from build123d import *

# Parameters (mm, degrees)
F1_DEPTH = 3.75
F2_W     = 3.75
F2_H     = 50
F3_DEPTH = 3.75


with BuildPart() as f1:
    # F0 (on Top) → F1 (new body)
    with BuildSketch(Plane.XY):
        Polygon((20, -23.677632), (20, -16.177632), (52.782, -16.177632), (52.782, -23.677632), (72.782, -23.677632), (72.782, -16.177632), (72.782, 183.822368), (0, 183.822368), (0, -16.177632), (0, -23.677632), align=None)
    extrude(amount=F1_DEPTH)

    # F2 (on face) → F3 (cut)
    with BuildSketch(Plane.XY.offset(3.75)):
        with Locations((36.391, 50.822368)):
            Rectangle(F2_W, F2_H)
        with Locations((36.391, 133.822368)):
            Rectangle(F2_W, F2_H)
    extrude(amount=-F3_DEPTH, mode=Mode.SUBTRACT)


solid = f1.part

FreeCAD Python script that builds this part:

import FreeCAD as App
import Part
import Sketcher
Q = App.Units.Quantity

doc = App.newDocument("Part")
body = doc.addObject("PartDesign::Body", "Body")

# Sketch on XY plane
sketch1 = doc.addObject("Sketcher::SketchObject", "Sketch")
body.addObject(sketch1)
sketch1.AttachmentSupport = (doc.XY_Plane, [""])
sketch1.MapMode = "FlatFace"
sketch1.addGeometry(Part.LineSegment(App.Vector(20, -24, 0), App.Vector(20, -16, 0)), False)
sketch1.addGeometry(Part.LineSegment(App.Vector(20, -16, 0), App.Vector(53, -16, 0)), False)
sketch1.addGeometry(Part.LineSegment(App.Vector(53, -16, 0), App.Vector(53, -24, 0)), False)
sketch1.addGeometry(Part.LineSegment(App.Vector(53, -24, 0), App.Vector(73, -24, 0)), False)
sketch1.addGeometry(Part.LineSegment(App.Vector(73, -24, 0), App.Vector(73, 184, 0)), False)
sketch1.addGeometry(Part.LineSegment(App.Vector(73, 184, 0), App.Vector(0, 184, 0)), False)
sketch1.addGeometry(Part.LineSegment(App.Vector(0, 184, 0), App.Vector(0, -24, 0)), False)
sketch1.addGeometry(Part.LineSegment(App.Vector(0, -24, 0), App.Vector(20, -24, 0)), False)
sketch1.addConstraint(Sketcher.Constraint("Coincident", 0, 2, 1, 1))
sketch1.addConstraint(Sketcher.Constraint("Coincident", 1, 2, 2, 1))
sketch1.addConstraint(Sketcher.Constraint("Coincident", 2, 2, 3, 1))
sketch1.addConstraint(Sketcher.Constraint("Coincident", 3, 2, 4, 1))
sketch1.addConstraint(Sketcher.Constraint("Coincident", 4, 2, 5, 1))
sketch1.addConstraint(Sketcher.Constraint("Coincident", 5, 2, 6, 1))
sketch1.addConstraint(Sketcher.Constraint("Coincident", 6, 2, 7, 1))
sketch1.addConstraint(Sketcher.Constraint("Coincident", 7, 2, 0, 1))
sketch1.addConstraint(Sketcher.Constraint("Vertical", 0))
sketch1.addConstraint(Sketcher.Constraint("Horizontal", 1))
sketch1.addConstraint(Sketcher.Constraint("Vertical", 2))
sketch1.addConstraint(Sketcher.Constraint("Horizontal", 3))
sketch1.addConstraint(Sketcher.Constraint("Vertical", 4))
sketch1.addConstraint(Sketcher.Constraint("Horizontal", 5))
sketch1.addConstraint(Sketcher.Constraint("Vertical", 6))
sketch1.addConstraint(Sketcher.Constraint("Horizontal", 7))
sketch1.addConstraint(Sketcher.Constraint("PointOnObject", 5, 2, -2))
sketch1.addConstraint(Sketcher.Constraint("Horizontal", 3, 2, 6, 2))
sketch1.addConstraint(Sketcher.Constraint("Equal", 3, 7))
sketch1.addConstraint(Sketcher.Constraint("DistanceX", 3, 1, 3, 2, Q("20 mm")))
sketch1.addConstraint(Sketcher.Constraint("DistanceY", 0, 1, 0, 2, Q("7.5 mm")))
sketch1.addConstraint(Sketcher.Constraint("DistanceY", 4, 1, 4, 2, Q("207.5 mm")))
sketch1.addConstraint(Sketcher.Constraint("DistanceX", 1, 1, 1, 2, Q("32.782 mm")))
sketch1.addConstraint(Sketcher.Constraint("DistanceY", 0, 2, -1, 1, Q("16.177632 mm")))
pad1 = doc.addObject("PartDesign::Pad", "Pad")
body.addObject(pad1)
pad1.Profile = sketch1
pad1.Length = 3.75

# Sketch on XY plane
sketch2 = doc.addObject("Sketcher::SketchObject", "Sketch001")
body.addObject(sketch2)
sketch2.AttachmentSupport = (doc.XY_Plane, [""])
sketch2.MapMode = "FlatFace"
sketch2.AttachmentOffset = App.Placement(App.Vector(0, 0, 3.75), App.Rotation())
sketch2.addGeometry(Part.LineSegment(App.Vector(34.5, 75.8, 0), App.Vector(34.5, 25.8, 0)), False)
sketch2.addGeometry(Part.LineSegment(App.Vector(34.5, 25.8, 0), App.Vector(38.3, 25.8, 0)), False)
sketch2.addGeometry(Part.LineSegment(App.Vector(38.3, 25.8, 0), App.Vector(38.3, 75.8, 0)), False)
sketch2.addGeometry(Part.LineSegment(App.Vector(38.3, 75.8, 0), App.Vector(34.5, 75.8, 0)), False)
sketch2.addGeometry(Part.LineSegment(App.Vector(34.5, 158.8, 0), App.Vector(34.5, 108.8, 0)), False)
sketch2.addGeometry(Part.LineSegment(App.Vector(34.5, 108.8, 0), App.Vector(38.3, 108.8, 0)), False)
sketch2.addGeometry(Part.LineSegment(App.Vector(38.3, 108.8, 0), App.Vector(38.3, 158.8, 0)), False)
sketch2.addGeometry(Part.LineSegment(App.Vector(38.3, 158.8, 0), App.Vector(34.5, 158.8, 0)), False)
sketch2.addConstraint(Sketcher.Constraint("Coincident", 0, 2, 1, 1))
sketch2.addConstraint(Sketcher.Constraint("Coincident", 1, 2, 2, 1))
sketch2.addConstraint(Sketcher.Constraint("Coincident", 2, 2, 3, 1))
sketch2.addConstraint(Sketcher.Constraint("Coincident", 3, 2, 0, 1))
sketch2.addConstraint(Sketcher.Constraint("Coincident", 4, 2, 5, 1))
sketch2.addConstraint(Sketcher.Constraint("Coincident", 5, 2, 6, 1))
sketch2.addConstraint(Sketcher.Constraint("Coincident", 6, 2, 7, 1))
sketch2.addConstraint(Sketcher.Constraint("Coincident", 7, 2, 4, 1))
sketch2.addConstraint(Sketcher.Constraint("Vertical", 0))
sketch2.addConstraint(Sketcher.Constraint("Horizontal", 1))
sketch2.addConstraint(Sketcher.Constraint("Vertical", 2))
sketch2.addConstraint(Sketcher.Constraint("Horizontal", 3))
sketch2.addConstraint(Sketcher.Constraint("Vertical", 4))
sketch2.addConstraint(Sketcher.Constraint("Horizontal", 5))
sketch2.addConstraint(Sketcher.Constraint("Vertical", 6))
sketch2.addConstraint(Sketcher.Constraint("Horizontal", 7))
sketch2.addConstraint(Sketcher.Constraint("Vertical", 3, 2, 4, 2))
sketch2.addConstraint(Sketcher.Constraint("Vertical", 2, 2, 5, 2))
sketch2.addConstraint(Sketcher.Constraint("Equal", 2, 4))
sketch2.addConstraint(Sketcher.Constraint("DistanceY", 0, 2, 0, 1, Q("50 mm")))
sketch2.addConstraint(Sketcher.Constraint("DistanceY", 3, 2, 4, 2, Q("33 mm")))
sketch2.addConstraint(Sketcher.Constraint("DistanceX", 1, 1, 1, 2, Q("3.75 mm")))
sketch2.addConstraint(Sketcher.Constraint("DistanceX", -1, 1, 0, 2, Q("34.516 mm")))
sketch2.addConstraint(Sketcher.Constraint("DistanceY", -1, 1, 0, 2, Q("25.822368 mm")))
pocket1 = doc.addObject("PartDesign::Pocket", "Pocket")
body.addObject(pocket1)
pocket1.Profile = sketch2
pocket1.Length = 3.75

doc.recompute()
